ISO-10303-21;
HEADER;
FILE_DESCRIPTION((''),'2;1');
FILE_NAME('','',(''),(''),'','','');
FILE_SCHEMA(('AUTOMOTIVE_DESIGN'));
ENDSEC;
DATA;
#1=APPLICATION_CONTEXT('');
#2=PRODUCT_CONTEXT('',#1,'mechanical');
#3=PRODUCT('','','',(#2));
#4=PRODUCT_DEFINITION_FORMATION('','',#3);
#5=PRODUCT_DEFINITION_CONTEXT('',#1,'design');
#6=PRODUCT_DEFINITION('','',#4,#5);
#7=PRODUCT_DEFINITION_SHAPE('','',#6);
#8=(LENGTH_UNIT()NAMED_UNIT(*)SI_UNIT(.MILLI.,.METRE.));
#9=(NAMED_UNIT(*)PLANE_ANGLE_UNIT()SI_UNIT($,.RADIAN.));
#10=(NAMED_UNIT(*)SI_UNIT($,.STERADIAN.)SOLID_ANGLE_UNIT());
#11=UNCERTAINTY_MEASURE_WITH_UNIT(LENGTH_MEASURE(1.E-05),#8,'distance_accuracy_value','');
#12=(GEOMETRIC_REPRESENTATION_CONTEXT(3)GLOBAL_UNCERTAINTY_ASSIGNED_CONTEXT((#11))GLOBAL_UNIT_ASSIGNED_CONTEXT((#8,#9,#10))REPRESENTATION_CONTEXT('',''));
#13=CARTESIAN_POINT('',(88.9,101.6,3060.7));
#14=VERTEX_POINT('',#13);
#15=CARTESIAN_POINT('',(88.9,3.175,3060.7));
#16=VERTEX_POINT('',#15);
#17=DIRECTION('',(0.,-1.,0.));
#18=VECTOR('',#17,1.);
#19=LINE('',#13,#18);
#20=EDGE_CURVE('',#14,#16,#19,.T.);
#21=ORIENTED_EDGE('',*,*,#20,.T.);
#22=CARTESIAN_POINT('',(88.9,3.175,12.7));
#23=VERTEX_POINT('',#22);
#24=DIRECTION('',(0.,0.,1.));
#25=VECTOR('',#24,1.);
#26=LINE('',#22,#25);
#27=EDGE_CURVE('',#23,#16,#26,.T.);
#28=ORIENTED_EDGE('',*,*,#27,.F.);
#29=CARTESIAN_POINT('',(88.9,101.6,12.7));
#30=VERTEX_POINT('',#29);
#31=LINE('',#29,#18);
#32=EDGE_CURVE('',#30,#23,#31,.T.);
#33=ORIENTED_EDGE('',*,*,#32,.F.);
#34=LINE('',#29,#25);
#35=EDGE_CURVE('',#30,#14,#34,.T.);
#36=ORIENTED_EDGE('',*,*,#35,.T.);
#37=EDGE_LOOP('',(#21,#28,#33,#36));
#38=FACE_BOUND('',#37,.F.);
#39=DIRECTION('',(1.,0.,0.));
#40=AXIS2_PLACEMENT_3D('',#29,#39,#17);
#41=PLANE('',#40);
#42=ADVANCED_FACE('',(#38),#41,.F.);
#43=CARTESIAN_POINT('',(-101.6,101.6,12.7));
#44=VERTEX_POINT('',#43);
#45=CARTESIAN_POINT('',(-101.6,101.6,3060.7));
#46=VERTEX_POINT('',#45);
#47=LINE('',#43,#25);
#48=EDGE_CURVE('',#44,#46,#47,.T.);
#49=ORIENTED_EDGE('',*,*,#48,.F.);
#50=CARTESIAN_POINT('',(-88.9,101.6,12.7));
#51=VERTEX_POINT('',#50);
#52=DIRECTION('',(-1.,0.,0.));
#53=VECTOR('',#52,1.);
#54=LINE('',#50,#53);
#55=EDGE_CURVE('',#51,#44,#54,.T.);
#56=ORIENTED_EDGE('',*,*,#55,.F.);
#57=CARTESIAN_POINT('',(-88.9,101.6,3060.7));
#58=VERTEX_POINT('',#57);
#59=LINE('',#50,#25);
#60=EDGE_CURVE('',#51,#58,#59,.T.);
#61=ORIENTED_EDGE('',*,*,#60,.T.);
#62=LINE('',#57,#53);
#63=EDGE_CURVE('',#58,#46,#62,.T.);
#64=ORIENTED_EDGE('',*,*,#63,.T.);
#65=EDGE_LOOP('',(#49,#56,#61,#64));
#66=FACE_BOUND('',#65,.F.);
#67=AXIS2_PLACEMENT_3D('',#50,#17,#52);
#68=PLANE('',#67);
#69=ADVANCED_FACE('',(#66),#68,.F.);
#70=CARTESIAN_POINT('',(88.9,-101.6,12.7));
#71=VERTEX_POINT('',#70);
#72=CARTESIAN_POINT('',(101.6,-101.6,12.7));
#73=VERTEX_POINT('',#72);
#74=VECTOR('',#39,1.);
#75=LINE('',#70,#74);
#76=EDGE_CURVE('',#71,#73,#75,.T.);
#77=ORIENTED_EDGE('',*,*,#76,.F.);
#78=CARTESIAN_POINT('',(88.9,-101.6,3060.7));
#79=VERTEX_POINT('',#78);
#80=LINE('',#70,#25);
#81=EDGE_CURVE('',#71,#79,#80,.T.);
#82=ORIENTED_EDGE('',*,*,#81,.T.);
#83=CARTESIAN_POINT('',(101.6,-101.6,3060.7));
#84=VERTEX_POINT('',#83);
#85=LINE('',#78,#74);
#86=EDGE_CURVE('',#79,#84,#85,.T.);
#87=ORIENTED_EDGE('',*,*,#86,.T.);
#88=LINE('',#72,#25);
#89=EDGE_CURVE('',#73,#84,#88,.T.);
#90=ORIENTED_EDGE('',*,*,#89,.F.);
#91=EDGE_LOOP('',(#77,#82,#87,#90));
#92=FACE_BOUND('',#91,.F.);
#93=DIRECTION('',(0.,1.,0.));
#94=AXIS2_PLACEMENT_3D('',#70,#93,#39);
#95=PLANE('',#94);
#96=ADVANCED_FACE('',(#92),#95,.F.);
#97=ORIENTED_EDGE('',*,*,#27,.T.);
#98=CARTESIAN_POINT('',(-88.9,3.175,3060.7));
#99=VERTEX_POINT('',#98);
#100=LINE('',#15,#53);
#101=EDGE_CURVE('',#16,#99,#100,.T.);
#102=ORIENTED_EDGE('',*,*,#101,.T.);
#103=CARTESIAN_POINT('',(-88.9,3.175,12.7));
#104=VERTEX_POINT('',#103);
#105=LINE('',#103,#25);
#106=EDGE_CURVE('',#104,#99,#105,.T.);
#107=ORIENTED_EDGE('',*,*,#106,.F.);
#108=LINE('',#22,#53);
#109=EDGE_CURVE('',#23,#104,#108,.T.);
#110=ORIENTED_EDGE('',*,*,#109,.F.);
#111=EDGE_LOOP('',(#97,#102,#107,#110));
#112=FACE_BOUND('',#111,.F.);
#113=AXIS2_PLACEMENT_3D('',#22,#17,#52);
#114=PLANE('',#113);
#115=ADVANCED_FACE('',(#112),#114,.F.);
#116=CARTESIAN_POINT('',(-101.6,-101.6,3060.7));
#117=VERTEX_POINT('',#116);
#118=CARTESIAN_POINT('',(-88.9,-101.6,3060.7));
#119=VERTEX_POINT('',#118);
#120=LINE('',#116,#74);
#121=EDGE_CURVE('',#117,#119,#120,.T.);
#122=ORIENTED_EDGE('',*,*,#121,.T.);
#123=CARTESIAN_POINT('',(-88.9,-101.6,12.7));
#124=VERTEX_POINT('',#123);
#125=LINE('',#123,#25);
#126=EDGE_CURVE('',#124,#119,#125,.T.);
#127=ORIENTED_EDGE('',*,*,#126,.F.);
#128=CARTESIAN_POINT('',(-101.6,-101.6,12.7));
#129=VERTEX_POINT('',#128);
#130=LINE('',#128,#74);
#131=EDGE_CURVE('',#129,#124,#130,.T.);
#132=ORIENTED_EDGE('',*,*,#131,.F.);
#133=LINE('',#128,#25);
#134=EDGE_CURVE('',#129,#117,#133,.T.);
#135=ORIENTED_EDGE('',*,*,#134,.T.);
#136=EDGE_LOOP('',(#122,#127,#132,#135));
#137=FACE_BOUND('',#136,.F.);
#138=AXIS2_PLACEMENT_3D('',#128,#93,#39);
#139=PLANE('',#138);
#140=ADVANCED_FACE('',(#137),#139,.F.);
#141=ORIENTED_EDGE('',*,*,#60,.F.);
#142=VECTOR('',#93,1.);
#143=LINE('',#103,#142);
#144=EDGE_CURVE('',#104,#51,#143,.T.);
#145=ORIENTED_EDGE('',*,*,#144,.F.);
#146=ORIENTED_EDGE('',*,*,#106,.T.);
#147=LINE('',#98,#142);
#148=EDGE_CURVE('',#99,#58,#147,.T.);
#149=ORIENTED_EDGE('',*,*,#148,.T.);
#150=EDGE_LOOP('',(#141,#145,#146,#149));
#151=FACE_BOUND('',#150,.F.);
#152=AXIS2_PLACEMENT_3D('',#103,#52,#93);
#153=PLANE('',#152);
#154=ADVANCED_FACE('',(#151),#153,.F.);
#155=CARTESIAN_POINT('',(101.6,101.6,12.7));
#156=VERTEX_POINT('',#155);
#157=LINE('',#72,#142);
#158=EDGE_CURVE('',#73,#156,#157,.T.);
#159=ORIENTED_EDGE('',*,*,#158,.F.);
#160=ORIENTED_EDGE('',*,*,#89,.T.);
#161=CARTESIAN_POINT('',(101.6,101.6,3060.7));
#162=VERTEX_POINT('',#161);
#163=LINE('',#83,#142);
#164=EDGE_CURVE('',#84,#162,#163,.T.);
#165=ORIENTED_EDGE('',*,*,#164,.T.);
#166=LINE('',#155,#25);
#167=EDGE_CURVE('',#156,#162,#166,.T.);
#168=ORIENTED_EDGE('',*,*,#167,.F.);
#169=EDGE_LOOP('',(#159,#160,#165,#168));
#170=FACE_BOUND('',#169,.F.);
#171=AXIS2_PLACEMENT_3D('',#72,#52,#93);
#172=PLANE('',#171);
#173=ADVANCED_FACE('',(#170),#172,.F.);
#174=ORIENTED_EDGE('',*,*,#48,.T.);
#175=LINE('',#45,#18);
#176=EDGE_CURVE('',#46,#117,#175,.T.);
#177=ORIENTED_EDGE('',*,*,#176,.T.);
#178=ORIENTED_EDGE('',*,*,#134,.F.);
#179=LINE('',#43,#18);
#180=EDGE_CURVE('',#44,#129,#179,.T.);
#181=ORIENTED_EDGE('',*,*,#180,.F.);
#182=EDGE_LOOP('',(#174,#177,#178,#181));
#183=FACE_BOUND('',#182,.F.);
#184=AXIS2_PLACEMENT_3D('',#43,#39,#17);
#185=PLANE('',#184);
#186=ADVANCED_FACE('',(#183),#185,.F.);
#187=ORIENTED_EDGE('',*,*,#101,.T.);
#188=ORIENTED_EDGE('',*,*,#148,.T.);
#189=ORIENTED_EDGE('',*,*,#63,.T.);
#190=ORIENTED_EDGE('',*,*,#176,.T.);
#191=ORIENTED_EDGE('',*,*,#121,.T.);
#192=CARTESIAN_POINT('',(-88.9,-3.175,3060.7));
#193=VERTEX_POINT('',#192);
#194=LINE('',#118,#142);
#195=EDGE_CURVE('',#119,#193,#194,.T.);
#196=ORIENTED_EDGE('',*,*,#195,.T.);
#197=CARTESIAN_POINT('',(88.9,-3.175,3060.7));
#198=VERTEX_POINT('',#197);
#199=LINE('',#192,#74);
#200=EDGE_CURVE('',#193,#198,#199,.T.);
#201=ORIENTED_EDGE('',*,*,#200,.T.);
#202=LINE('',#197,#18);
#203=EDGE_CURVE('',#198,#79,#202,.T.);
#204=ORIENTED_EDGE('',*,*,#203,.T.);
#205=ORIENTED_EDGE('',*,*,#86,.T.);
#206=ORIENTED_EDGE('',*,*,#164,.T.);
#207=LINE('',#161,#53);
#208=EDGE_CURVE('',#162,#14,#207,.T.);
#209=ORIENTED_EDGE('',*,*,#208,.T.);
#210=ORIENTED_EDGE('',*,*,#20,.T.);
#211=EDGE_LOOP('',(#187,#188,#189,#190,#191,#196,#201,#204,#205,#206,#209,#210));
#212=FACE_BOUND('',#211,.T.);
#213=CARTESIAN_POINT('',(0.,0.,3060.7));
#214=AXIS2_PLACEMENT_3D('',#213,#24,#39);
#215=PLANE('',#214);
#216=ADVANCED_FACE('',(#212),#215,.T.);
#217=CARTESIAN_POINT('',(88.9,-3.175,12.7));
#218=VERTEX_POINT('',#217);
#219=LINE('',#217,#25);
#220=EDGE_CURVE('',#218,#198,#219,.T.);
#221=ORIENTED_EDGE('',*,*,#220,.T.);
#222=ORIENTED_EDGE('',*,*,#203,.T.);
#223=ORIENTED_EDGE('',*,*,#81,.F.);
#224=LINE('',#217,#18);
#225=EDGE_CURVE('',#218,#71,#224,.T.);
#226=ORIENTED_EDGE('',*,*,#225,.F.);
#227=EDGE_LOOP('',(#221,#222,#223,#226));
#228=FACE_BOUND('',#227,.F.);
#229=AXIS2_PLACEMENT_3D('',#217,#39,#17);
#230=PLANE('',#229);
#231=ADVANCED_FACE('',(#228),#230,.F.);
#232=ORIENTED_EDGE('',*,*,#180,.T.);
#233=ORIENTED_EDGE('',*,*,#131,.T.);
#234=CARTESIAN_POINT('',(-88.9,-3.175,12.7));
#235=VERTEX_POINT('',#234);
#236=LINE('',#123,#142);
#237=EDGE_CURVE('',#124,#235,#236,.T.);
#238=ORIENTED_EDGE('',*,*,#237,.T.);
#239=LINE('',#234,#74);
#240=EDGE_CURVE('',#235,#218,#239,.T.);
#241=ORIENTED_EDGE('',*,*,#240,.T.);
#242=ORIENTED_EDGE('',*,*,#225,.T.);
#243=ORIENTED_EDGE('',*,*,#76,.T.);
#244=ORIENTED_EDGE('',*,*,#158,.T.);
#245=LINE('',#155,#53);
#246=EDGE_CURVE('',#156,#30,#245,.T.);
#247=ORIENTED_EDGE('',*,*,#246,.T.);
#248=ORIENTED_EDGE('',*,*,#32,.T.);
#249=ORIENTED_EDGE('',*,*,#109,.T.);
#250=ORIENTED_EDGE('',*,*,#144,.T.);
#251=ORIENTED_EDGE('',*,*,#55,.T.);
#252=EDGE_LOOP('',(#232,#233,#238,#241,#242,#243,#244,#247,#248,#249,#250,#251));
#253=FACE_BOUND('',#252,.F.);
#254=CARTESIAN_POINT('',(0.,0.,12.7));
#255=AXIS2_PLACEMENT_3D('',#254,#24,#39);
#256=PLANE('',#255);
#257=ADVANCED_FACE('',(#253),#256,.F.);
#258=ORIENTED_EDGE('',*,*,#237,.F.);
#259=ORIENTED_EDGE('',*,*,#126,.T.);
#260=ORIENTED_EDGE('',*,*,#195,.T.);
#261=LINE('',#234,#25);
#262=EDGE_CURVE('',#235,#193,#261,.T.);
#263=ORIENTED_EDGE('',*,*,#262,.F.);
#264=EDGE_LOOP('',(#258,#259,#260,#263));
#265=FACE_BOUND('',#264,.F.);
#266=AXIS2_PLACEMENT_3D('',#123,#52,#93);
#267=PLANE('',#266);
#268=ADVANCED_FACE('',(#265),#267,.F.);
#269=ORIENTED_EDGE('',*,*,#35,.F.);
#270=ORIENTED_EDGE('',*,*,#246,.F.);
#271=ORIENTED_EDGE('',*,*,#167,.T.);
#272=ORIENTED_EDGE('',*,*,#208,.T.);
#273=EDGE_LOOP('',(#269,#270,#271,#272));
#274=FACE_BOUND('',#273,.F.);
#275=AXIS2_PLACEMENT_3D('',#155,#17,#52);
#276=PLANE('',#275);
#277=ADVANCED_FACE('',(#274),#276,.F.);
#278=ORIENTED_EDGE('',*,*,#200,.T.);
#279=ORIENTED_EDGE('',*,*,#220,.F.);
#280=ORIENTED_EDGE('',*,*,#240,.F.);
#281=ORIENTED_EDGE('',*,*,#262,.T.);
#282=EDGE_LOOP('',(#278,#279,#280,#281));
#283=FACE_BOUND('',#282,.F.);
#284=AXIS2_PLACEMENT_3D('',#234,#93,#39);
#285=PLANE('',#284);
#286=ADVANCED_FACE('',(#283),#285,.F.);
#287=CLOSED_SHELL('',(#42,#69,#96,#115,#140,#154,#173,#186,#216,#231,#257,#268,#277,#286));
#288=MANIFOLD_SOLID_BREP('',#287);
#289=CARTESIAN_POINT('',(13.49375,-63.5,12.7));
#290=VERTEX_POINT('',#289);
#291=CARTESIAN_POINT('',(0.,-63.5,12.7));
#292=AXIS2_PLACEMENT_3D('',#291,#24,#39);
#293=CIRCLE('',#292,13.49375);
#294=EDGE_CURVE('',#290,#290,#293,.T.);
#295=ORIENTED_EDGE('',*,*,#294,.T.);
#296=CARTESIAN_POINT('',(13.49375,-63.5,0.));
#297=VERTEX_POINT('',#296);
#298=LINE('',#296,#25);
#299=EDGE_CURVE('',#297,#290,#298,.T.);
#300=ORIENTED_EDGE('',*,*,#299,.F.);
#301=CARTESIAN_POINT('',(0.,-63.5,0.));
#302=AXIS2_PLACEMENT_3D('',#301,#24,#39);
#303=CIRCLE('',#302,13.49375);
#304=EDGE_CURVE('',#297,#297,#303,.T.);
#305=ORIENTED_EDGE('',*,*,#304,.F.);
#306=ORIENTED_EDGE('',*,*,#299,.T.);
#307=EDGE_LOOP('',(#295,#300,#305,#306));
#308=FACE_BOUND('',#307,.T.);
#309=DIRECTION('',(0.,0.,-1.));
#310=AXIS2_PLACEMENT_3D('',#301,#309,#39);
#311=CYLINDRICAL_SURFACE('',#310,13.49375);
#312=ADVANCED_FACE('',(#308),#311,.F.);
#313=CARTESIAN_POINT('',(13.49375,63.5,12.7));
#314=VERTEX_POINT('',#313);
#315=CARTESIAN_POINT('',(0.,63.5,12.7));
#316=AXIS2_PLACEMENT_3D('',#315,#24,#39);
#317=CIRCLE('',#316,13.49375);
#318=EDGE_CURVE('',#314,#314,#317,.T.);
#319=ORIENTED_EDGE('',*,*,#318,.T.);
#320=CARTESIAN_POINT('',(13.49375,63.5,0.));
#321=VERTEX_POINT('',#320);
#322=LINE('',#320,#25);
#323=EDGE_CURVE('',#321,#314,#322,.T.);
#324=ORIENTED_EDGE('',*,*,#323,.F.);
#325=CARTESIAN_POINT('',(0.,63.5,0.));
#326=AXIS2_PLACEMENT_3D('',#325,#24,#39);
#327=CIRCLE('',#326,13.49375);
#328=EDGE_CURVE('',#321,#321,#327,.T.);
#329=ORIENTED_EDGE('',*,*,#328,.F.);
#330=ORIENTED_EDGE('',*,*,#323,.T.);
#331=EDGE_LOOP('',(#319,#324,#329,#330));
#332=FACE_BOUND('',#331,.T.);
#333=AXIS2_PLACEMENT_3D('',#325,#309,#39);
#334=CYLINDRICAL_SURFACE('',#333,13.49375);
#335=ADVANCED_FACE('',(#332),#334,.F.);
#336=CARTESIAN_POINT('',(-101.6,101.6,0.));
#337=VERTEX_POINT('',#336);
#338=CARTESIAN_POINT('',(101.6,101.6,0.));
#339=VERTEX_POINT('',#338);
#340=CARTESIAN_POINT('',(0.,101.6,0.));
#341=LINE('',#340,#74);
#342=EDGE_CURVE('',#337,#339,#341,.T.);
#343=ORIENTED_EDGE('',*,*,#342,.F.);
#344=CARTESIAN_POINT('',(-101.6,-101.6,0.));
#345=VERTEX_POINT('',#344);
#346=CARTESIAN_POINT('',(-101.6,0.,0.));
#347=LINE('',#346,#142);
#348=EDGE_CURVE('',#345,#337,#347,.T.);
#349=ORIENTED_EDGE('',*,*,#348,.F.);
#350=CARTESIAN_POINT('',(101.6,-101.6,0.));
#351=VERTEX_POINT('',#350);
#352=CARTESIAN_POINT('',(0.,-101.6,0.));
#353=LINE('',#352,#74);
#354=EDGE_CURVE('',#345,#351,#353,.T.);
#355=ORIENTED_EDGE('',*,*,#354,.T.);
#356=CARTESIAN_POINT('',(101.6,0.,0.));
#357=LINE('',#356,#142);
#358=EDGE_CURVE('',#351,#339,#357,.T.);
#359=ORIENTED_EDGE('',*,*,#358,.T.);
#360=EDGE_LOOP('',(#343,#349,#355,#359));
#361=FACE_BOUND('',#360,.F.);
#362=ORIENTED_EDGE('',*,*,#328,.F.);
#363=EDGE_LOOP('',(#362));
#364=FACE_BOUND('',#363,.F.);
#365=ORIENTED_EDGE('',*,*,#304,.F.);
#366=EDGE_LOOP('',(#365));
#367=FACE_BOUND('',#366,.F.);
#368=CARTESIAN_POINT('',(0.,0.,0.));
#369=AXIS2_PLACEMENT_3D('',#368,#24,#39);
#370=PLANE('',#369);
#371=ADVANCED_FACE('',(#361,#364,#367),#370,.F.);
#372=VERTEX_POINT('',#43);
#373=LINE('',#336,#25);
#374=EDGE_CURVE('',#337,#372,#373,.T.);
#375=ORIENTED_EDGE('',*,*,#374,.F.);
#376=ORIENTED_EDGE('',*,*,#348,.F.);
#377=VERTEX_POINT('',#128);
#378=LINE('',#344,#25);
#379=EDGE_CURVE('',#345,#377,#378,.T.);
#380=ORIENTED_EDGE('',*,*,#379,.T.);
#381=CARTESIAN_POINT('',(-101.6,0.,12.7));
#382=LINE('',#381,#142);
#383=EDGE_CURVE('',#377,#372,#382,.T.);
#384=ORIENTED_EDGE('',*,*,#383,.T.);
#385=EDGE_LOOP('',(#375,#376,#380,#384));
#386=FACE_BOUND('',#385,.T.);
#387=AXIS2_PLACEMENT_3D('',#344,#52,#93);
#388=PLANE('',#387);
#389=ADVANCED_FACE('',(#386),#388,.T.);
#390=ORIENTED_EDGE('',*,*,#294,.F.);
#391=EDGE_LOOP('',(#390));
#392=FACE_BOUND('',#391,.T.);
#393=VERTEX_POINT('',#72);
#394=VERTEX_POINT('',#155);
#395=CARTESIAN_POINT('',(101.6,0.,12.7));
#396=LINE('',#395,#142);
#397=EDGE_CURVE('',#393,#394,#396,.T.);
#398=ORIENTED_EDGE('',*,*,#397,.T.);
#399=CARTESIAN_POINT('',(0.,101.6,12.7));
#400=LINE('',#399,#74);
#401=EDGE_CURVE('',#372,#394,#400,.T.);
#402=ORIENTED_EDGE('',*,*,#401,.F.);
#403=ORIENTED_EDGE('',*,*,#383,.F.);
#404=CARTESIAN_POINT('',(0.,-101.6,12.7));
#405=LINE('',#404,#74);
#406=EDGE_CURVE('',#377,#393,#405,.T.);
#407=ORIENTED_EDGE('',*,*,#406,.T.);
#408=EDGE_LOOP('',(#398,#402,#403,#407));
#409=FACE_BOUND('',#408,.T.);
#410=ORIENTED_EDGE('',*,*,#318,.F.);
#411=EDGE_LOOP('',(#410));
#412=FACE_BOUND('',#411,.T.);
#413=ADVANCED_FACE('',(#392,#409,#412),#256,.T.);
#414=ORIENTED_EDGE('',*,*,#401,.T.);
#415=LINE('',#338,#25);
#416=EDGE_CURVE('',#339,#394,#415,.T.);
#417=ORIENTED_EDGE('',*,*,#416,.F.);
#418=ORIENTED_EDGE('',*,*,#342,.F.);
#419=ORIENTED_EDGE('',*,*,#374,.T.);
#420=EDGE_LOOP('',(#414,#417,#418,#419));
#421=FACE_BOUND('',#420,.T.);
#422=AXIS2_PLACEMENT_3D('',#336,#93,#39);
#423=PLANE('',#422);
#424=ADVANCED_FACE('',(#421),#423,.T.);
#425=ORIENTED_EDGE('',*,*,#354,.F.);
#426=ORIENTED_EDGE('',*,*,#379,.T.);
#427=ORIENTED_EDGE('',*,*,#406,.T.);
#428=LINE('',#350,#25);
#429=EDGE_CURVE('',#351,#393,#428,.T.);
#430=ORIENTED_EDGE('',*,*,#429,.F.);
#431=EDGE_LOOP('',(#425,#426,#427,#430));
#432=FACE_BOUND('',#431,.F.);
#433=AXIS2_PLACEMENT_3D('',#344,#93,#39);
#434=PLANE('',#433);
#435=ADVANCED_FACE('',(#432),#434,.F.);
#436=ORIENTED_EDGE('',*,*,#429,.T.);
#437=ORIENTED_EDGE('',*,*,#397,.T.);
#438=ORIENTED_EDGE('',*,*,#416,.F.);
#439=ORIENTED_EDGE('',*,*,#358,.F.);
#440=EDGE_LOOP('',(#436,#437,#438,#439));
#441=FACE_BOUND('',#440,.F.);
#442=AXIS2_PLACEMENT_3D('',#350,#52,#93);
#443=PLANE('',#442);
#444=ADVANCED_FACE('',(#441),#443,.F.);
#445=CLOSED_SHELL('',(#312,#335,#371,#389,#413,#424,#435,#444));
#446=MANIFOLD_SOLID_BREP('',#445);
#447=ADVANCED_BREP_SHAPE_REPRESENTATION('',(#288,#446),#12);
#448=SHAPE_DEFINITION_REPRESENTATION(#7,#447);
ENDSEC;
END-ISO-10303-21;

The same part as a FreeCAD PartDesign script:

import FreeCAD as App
import Part
import Sketcher
Q = App.Units.Quantity

doc = App.newDocument("Part")
body = doc.addObject("PartDesign::Body", "Body")

# Sketch on XY plane
sketch1 = body.newObject("Sketcher::SketchObject", "Sketch")
sketch1.AttachmentSupport = (doc.getObject("XY_Plane"), [""])
sketch1.MapMode = "FlatFace"
sketch1.addGeometry(Part.LineSegment(App.Vector(-101.6, 101.6, 0), App.Vector(-101.6, -101.6, 0)), False)
sketch1.addGeometry(Part.LineSegment(App.Vector(-101.6, -101.6, 0), App.Vector(101.6, -101.6, 0)), False)
sketch1.addGeometry(Part.LineSegment(App.Vector(101.6, -101.6, 0), App.Vector(101.6, 101.6, 0)), False)
sketch1.addGeometry(Part.LineSegment(App.Vector(101.6, 101.6, 0), App.Vector(-101.6, 101.6, 0)), False)
sketch1.addGeometry(Part.Circle(App.Vector(0, -63.5, 0), App.Vector(0, 0, 1), 13.49375), False)
sketch1.addGeometry(Part.Circle(App.Vector(0, 63.5, 0), App.Vector(0, 0, 1), 13.49375), False)
sketch1.addConstraint(Sketcher.Constraint("Coincident", 0, 2, 1, 1))
sketch1.addConstraint(Sketcher.Constraint("Coincident", 1, 2, 2, 1))
sketch1.addConstraint(Sketcher.Constraint("Coincident", 2, 2, 3, 1))
sketch1.addConstraint(Sketcher.Constraint("Coincident", 3, 2, 0, 1))
sketch1.addConstraint(Sketcher.Constraint("Vertical", 0))
sketch1.addConstraint(Sketcher.Constraint("Horizontal", 1))
sketch1.addConstraint(Sketcher.Constraint("Vertical", 2))
sketch1.addConstraint(Sketcher.Constraint("Horizontal", 3))
sketch1.addConstraint(Sketcher.Constraint("Equal", 4, 5))
sketch1.addConstraint(Sketcher.Constraint("Symmetric", 4, 3, 5, 3, -1, 1))
sketch1.addConstraint(Sketcher.Constraint("Symmetric", 0, 2, 2, 2, -1, 1))
sketch1.addConstraint(Sketcher.Constraint("PointOnObject", 4, 3, -2))
sketch1.addConstraint(Sketcher.Constraint("Equal", 3, 0))
sketch1.addConstraint(Sketcher.Constraint("DistanceX", 1, 1, 1, 2, Q("8 in")))
sketch1.addConstraint(Sketcher.Constraint("Diameter", 4, Q("1.0625 in")))
sketch1.addConstraint(Sketcher.Constraint("DistanceY", 4, 3, 5, 3, Q("5 in")))
pad1 = body.newObject("PartDesign::Pad", "Pad")
pad1.Profile = sketch1
pad1.Length = Q("0.5 in")
body2 = doc.addObject("PartDesign::Body", "Body001")

# Sketch on XY plane
sketch2 = body2.newObject("Sketcher::SketchObject", "Sketch001")
sketch2.AttachmentSupport = (doc.getObject("XY_Plane001"), [""])
sketch2.MapMode = "FlatFace"
sketch2.AttachmentOffset = App.Placement(App.Vector(0, 0, 0.5 * 25.4), App.Rotation())
sketch2.addGeometry(Part.LineSegment(App.Vector(-88.9, 101.6, 0), App.Vector(-101.6, 101.6, 0)), False)
sketch2.addGeometry(Part.LineSegment(App.Vector(-101.6, 101.6, 0), App.Vector(-101.6, -101.6, 0)), False)
sketch2.addGeometry(Part.LineSegment(App.Vector(-101.6, -101.6, 0), App.Vector(-88.9, -101.6, 0)), False)
sketch2.addGeometry(Part.LineSegment(App.Vector(-88.9, -101.6, 0), App.Vector(-88.9, -3.175, 0)), False)
sketch2.addGeometry(Part.LineSegment(App.Vector(-88.9, -3.175, 0), App.Vector(88.9, -3.175, 0)), False)
sketch2.addGeometry(Part.LineSegment(App.Vector(88.9, -3.175, 0), App.Vector(88.9, -101.6, 0)), False)
sketch2.addGeometry(Part.LineSegment(App.Vector(88.9, -101.6, 0), App.Vector(101.6, -101.6, 0)), False)
sketch2.addGeometry(Part.LineSegment(App.Vector(101.6, -101.6, 0), App.Vector(101.6, 101.6, 0)), False)
sketch2.addGeometry(Part.LineSegment(App.Vector(101.6, 101.6, 0), App.Vector(88.9, 101.6, 0)), False)
sketch2.addGeometry(Part.LineSegment(App.Vector(88.9, 101.6, 0), App.Vector(88.9, 3.175, 0)), False)
sketch2.addGeometry(Part.LineSegment(App.Vector(88.9, 3.175, 0), App.Vector(-88.9, 3.175, 0)), False)
sketch2.addGeometry(Part.LineSegment(App.Vector(-88.9, 3.175, 0), App.Vector(-88.9, 101.6, 0)), False)
sketch2.addConstraint(Sketcher.Constraint("Coincident", 0, 2, 1, 1))
sketch2.addConstraint(Sketcher.Constraint("Coincident", 1, 2, 2, 1))
sketch2.addConstraint(Sketcher.Constraint("Coincident", 2, 2, 3, 1))
sketch2.addConstraint(Sketcher.Constraint("Coincident", 3, 2, 4, 1))
sketch2.addConstraint(Sketcher.Constraint("Coincident", 4, 2, 5, 1))
sketch2.addConstraint(Sketcher.Constraint("Coincident", 5, 2, 6, 1))
sketch2.addConstraint(Sketcher.Constraint("Coincident", 6, 2, 7, 1))
sketch2.addConstraint(Sketcher.Constraint("Coincident", 7, 2, 8, 1))
sketch2.addConstraint(Sketcher.Constraint("Coincident", 8, 2, 9, 1))
sketch2.addConstraint(Sketcher.Constraint("Coincident", 9, 2, 10, 1))
sketch2.addConstraint(Sketcher.Constraint("Coincident", 10, 2, 11, 1))
sketch2.addConstraint(Sketcher.Constraint("Coincident", 11, 2, 0, 1))
sketch2.addConstraint(Sketcher.Constraint("Horizontal", 0))
sketch2.addConstraint(Sketcher.Constraint("Vertical", 1))
sketch2.addConstraint(Sketcher.Constraint("Horizontal", 2))
sketch2.addConstraint(Sketcher.Constraint("Vertical", 3))
sketch2.addConstraint(Sketcher.Constraint("Horizontal", 4))
sketch2.addConstraint(Sketcher.Constraint("Vertical", 5))
sketch2.addConstraint(Sketcher.Constraint("Horizontal", 6))
sketch2.addConstraint(Sketcher.Constraint("Vertical", 7))
sketch2.addConstraint(Sketcher.Constraint("Horizontal", 8))
sketch2.addConstraint(Sketcher.Constraint("Vertical", 9))
sketch2.addConstraint(Sketcher.Constraint("Horizontal", 10))
sketch2.addConstraint(Sketcher.Constraint("Vertical", 11))
sketch2.addConstraint(Sketcher.Constraint("Symmetric", 0, 2, 6, 2, -1, 1))
sketch2.addConstraint(Sketcher.Constraint("Symmetric", 2, 2, 8, 2, -1, 1))
sketch2.addConstraint(Sketcher.Constraint("Symmetric", 4, 2, 10, 2, -1, 1))
sketch2.addConstraint(Sketcher.Constraint("Symmetric", 2, 2, 5, 2, -2))
sketch2.addConstraint(Sketcher.Constraint("DistanceX", 4, 1, 4, 2, Q("7 in")))
sketch2.addConstraint(Sketcher.Constraint("DistanceY", 1, 2, 1, 1, Q("8 in")))
sketch2.addConstraint(Sketcher.Constraint("DistanceX", 0, 2, 0, 1, Q("0.5 in")))
sketch2.addConstraint(Sketcher.Constraint("DistanceY", 3, 1, 3, 2, Q("3.875 in")))
pad2 = body2.newObject("PartDesign::Pad", "Pad001")
pad2.Profile = sketch2
pad2.Length = Q("120 in")

doc.recompute()
